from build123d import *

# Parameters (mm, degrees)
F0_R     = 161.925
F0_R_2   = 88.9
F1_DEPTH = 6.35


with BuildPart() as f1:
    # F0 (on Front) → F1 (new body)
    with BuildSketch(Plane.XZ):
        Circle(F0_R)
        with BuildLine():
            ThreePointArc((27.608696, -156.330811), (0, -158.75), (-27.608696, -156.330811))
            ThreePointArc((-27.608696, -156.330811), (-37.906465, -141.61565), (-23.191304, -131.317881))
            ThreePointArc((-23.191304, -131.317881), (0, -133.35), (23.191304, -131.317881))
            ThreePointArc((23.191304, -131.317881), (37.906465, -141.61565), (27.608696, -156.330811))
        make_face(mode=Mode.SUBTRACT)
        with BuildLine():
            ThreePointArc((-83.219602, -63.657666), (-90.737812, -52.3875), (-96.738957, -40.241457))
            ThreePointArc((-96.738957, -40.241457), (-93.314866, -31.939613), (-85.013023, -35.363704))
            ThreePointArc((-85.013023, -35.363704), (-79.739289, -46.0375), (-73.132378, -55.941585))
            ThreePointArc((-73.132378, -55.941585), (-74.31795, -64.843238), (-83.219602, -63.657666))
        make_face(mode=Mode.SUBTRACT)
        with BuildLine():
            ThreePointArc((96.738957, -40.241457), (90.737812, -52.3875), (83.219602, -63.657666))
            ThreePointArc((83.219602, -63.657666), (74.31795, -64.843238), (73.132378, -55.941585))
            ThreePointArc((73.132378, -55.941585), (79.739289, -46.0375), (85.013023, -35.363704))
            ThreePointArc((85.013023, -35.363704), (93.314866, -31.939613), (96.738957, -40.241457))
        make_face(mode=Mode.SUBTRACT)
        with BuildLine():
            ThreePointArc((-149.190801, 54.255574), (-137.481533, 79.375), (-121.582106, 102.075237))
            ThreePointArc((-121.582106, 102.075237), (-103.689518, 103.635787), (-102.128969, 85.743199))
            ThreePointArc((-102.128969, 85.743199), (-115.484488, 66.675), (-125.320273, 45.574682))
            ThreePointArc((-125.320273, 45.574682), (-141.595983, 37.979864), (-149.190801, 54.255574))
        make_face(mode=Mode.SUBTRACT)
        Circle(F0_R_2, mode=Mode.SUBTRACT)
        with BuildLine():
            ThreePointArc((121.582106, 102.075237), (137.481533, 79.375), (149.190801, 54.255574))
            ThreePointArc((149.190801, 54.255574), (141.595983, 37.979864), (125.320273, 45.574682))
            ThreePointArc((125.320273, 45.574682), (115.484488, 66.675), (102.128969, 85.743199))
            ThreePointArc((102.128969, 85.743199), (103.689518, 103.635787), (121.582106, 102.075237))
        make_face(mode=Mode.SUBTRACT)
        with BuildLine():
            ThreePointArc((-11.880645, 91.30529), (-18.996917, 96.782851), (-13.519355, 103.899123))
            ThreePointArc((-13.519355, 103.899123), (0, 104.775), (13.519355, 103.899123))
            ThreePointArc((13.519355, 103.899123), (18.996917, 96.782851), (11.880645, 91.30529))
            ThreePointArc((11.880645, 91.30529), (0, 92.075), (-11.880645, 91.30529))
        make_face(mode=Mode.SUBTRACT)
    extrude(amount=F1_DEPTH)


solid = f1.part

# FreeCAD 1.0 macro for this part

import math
import FreeCAD as App
import Part
import Sketcher
Q = App.Units.Quantity

doc = App.newDocument("Part")
body = doc.addObject("PartDesign::Body", "Body")

# Sketch on XZ plane
sketch1 = body.newObject("Sketcher::SketchObject", "Sketch")
sketch1.AttachmentSupport = (doc.getObject("XZ_Plane"), [""])
sketch1.MapMode = "FlatFace"
sketch1.addGeometry([
    Part.Circle(App.Vector(0, 0, 0), App.Vector(0, 0, 1), 161.925),  # 0
    Part.ArcOfCircle(Part.Circle(App.Vector(-78.17599, -59.799626, 0), App.Vector(0, 0, 1), 6.35), math.radians(-142.586325), math.radians(37.413677)),  # 1
    Part.ArcOfCircle(Part.Circle(App.Vector(-0.000027, -0.000014, 0), App.Vector(0, 0, 1), 104.77497), math.radians(-157.413675), math.radians(-142.586323)),  # 2
    Part.ArcOfCircle(Part.Circle(App.Vector(-90.87599, -37.80258, 0), App.Vector(0, 0, 1), 6.35), math.radians(22.586327), math.radians(202.586332)),  # 3
    Part.ArcOfCircle(Part.Circle(App.Vector(0.000015, 0.000008, 0), App.Vector(0, 0, 1), 92.075017), math.radians(-157.413673), math.radians(-142.586328)),  # 4
    Part.ArcOfCircle(Part.Circle(App.Vector(25.4, -143.824346, 0), App.Vector(0, 0, 1), 12.7), math.radians(-79.984588), math.radians(100.015412)),  # 5
    Part.ArcOfCircle(Part.Circle(App.Vector(0, 0.000013, 0), App.Vector(0, 0, 1), 158.750013), math.radians(-100.015409), math.radians(-79.984591)),  # 6
    Part.ArcOfCircle(Part.Circle(App.Vector(-25.4, -143.824346, 0), App.Vector(0, 0, 1), 12.7), math.radians(79.984588), math.radians(259.984588)),  # 7
    Part.ArcOfCircle(Part.Circle(App.Vector(0, -0.000012, 0), App.Vector(0, 0, 1), 133.349988), math.radians(-100.015411), math.radians(-79.984589)),  # 8
    Part.ArcOfCircle(Part.Circle(App.Vector(90.87599, -37.80258, 0), App.Vector(0, 0, 1), 6.35), math.radians(-22.586332), math.radians(157.413673)),  # 9
    Part.ArcOfCircle(Part.Circle(App.Vector(0.000027, -0.000014, 0), App.Vector(0, 0, 1), 104.77497), math.radians(-37.413677), math.radians(-22.586325)),  # 10
    Part.ArcOfCircle(Part.Circle(App.Vector(78.17599, -59.799626, 0), App.Vector(0, 0, 1), 6.35), math.radians(142.586323), math.radians(322.586325)),  # 11
    Part.ArcOfCircle(Part.Circle(App.Vector(-0.000015, 0.000008, 0), App.Vector(0, 0, 1), 92.075017), math.radians(-37.413672), math.radians(-22.586327)),  # 12
    Part.Circle(App.Vector(0, 0, 0), App.Vector(0, 0, 1), 88.9),  # 13
    Part.ArcOfCircle(Part.Circle(App.Vector(-137.255537, 49.915128, 0), App.Vector(0, 0, 1), 12.7), math.radians(160.01541), math.radians(340.01541)),  # 14
    Part.ArcOfCircle(Part.Circle(App.Vector(-0.000014, 0.000009, 0), App.Vector(0, 0, 1), 158.749983), math.radians(139.984589), math.radians(160.015411)),  # 15
    Part.ArcOfCircle(Part.Circle(App.Vector(-111.855537, 93.909219, 0), App.Vector(0, 0, 1), 12.7), math.radians(-40.015413), math.radians(139.984593)),  # 16
    Part.ArcOfCircle(Part.Circle(App.Vector(-0.000025, 0.000015, 0), App.Vector(0, 0, 1), 133.349971), math.radians(139.984588), math.radians(160.015412)),  # 17
    Part.ArcOfCircle(Part.Circle(App.Vector(0, -0.000054, 0), App.Vector(0, 0, 1), 92.075054), math.radians(82.586331), math.radians(97.413669)),  # 18
    Part.ArcOfCircle(Part.Circle(App.Vector(-12.700001, 97.602206, 0), App.Vector(0, 0, 1), 6.35), math.radians(97.41367), math.radians(277.41368)),  # 19
    Part.ArcOfCircle(Part.Circle(App.Vector(0, -0.000054, 0), App.Vector(0, 0, 1), 104.775054), math.radians(82.58633), math.radians(97.41367)),  # 20
    Part.ArcOfCircle(Part.Circle(App.Vector(12.700001, 97.602206, 0), App.Vector(0, 0, 1), 6.35), math.radians(-97.41368), math.radians(82.58633)),  # 21
    Part.ArcOfCircle(Part.Circle(App.Vector(111.855537, 93.909219, 0), App.Vector(0, 0, 1), 12.7), math.radians(40.015407), math.radians(220.015413)),  # 22
    Part.ArcOfCircle(Part.Circle(App.Vector(0.000014, 0.000009, 0), App.Vector(0, 0, 1), 158.749983), math.radians(19.984589), math.radians(40.015411)),  # 23
    Part.ArcOfCircle(Part.Circle(App.Vector(137.255537, 49.915128, 0), App.Vector(0, 0, 1), 12.7), math.radians(-160.01541), math.radians(19.98459)),  # 24
    Part.ArcOfCircle(Part.Circle(App.Vector(0.000025, 0.000015, 0), App.Vector(0, 0, 1), 133.349971), math.radians(19.984588), math.radians(40.015412)),  # 25
], False)
sketch1.addConstraint([
    Sketcher.Constraint("Tangent", 1, 1, 2, 2),
    Sketcher.Constraint("Tangent", 2, 1, 3, 2),
    Sketcher.Constraint("Tangent", 3, 1, 4, 1),
    Sketcher.Constraint("Tangent", 4, 2, 1, 2),
    Sketcher.Constraint("Tangent", 5, 1, 6, 2),
    Sketcher.Constraint("Tangent", 6, 1, 7, 2),
    Sketcher.Constraint("Tangent", 7, 1, 8, 1),
    Sketcher.Constraint("Tangent", 8, 2, 5, 2),
    Sketcher.Constraint("Tangent", 9, 1, 10, 2),
    Sketcher.Constraint("Tangent", 10, 1, 11, 2),
    Sketcher.Constraint("Tangent", 11, 1, 12, 1),
    Sketcher.Constraint("Tangent", 12, 2, 9, 2),
    Sketcher.Constraint("Tangent", 14, 1, 15, 2),
    Sketcher.Constraint("Tangent", 15, 1, 16, 2),
    Sketcher.Constraint("Tangent", 16, 1, 17, 1),
    Sketcher.Constraint("Tangent", 17, 2, 14, 2),
    Sketcher.Constraint("Tangent", 18, 2, 19, 2),
    Sketcher.Constraint("Tangent", 19, 1, 20, 2),
    Sketcher.Constraint("Tangent", 20, 1, 21, 2),
    Sketcher.Constraint("Tangent", 21, 1, 18, 1),
    Sketcher.Constraint("Tangent", 22, 1, 23, 2),
    Sketcher.Constraint("Tangent", 23, 1, 24, 2),
    Sketcher.Constraint("Tangent", 24, 1, 25, 1),
    Sketcher.Constraint("Tangent", 25, 2, 22, 2),
    Sketcher.Constraint("Coincident", 0, 3, -1, 1),
    Sketcher.Constraint("Coincident", 13, 3, -1, 1),
    Sketcher.Constraint("Coincident", 15, 3, 12, 3),
    Sketcher.Constraint("Coincident", 20, 3, 18, 3),
    Sketcher.Constraint("Coincident", 23, 3, 4, 3),
    Sketcher.Constraint("Equal", 1, 3),
    Sketcher.Constraint("Equal", 5, 7),
    Sketcher.Constraint("Equal", 3, 9),
    Sketcher.Constraint("Equal", 2, 10),
    Sketcher.Constraint("Equal", 9, 11),
    Sketcher.Constraint("Equal", 4, 12),
    Sketcher.Constraint("Equal", 7, 14),
    Sketcher.Constraint("Equal", 14, 16),
    Sketcher.Constraint("Equal", 11, 19),
    Sketcher.Constraint("Equal", 16, 22),
    Sketcher.Constraint("Equal", 15, 23),
    Sketcher.Constraint("Equal", 22, 24),
    Sketcher.Constraint("Equal", 17, 25),
    Sketcher.Constraint("Symmetric", 6, 3, 8, 3, -1, 1),
    Sketcher.Constraint("Symmetric", 10, 3, 17, 3, -1, 1),
    Sketcher.Constraint("Symmetric", 2, 3, 25, 3, -1, 1),
    Sketcher.Constraint("Symmetric", 19, 3, 21, 3, -2),
    Sketcher.Constraint("Horizontal", 5, 3, 7, 3),
    Sketcher.Constraint("Horizontal", 3, 3, 9, 3),
    Sketcher.Constraint("Horizontal", 1, 3, 11, 3),
    Sketcher.Constraint("Horizontal", 6, 3, 17, 3),
    Sketcher.Constraint("Horizontal", 16, 3, 22, 3),
    Sketcher.Constraint("Horizontal", 14, 3, 24, 3),
    Sketcher.Constraint("Diameter", 13, Q("7 in")),
    Sketcher.Constraint("Radius", 5, Q("0.5 in")),
    Sketcher.Constraint("Diameter", 0, Q("12.75 in")),
    Sketcher.Constraint("Radius", 1, Q("0.25 in")),
    Sketcher.Constraint("DistanceX", -1, 1, 5, 3, Q("1 in")),
    Sketcher.Constraint("DistanceX", 14, 3, 16, 3, Q("1 in")),
    Sketcher.Constraint("DistanceX", 19, 3, 21, 3, Q("1 in")),
    Sketcher.Constraint("DistanceX", 3, 3, 1, 3, Q("0.5 in")),
    Sketcher.Constraint("Radius", 2, 104.77497),
    Sketcher.Constraint("Radius", 8, 133.349988),
    Sketcher.Constraint("Radius", 17, 133.349971),
    Sketcher.Constraint("Radius", 4, 92.075017),
    Sketcher.Constraint("Radius", 6, 158.750013),
    Sketcher.Constraint("Radius", 18, 92.075054),
    Sketcher.Constraint("DistanceY", 16, 1, 19, 1, Q("0.7148002 in")),
    Sketcher.Constraint("DistanceX", 1, 1, -1, 1, 83.219602),
    Sketcher.Constraint("DistanceX", 14, 1, -1, 1, 149.190801),
])
pad1 = body.newObject("PartDesign::Pad", "Pad")
pad1.Profile = sketch1
pad1.Length = Q("0.25 in")

doc.recompute()
